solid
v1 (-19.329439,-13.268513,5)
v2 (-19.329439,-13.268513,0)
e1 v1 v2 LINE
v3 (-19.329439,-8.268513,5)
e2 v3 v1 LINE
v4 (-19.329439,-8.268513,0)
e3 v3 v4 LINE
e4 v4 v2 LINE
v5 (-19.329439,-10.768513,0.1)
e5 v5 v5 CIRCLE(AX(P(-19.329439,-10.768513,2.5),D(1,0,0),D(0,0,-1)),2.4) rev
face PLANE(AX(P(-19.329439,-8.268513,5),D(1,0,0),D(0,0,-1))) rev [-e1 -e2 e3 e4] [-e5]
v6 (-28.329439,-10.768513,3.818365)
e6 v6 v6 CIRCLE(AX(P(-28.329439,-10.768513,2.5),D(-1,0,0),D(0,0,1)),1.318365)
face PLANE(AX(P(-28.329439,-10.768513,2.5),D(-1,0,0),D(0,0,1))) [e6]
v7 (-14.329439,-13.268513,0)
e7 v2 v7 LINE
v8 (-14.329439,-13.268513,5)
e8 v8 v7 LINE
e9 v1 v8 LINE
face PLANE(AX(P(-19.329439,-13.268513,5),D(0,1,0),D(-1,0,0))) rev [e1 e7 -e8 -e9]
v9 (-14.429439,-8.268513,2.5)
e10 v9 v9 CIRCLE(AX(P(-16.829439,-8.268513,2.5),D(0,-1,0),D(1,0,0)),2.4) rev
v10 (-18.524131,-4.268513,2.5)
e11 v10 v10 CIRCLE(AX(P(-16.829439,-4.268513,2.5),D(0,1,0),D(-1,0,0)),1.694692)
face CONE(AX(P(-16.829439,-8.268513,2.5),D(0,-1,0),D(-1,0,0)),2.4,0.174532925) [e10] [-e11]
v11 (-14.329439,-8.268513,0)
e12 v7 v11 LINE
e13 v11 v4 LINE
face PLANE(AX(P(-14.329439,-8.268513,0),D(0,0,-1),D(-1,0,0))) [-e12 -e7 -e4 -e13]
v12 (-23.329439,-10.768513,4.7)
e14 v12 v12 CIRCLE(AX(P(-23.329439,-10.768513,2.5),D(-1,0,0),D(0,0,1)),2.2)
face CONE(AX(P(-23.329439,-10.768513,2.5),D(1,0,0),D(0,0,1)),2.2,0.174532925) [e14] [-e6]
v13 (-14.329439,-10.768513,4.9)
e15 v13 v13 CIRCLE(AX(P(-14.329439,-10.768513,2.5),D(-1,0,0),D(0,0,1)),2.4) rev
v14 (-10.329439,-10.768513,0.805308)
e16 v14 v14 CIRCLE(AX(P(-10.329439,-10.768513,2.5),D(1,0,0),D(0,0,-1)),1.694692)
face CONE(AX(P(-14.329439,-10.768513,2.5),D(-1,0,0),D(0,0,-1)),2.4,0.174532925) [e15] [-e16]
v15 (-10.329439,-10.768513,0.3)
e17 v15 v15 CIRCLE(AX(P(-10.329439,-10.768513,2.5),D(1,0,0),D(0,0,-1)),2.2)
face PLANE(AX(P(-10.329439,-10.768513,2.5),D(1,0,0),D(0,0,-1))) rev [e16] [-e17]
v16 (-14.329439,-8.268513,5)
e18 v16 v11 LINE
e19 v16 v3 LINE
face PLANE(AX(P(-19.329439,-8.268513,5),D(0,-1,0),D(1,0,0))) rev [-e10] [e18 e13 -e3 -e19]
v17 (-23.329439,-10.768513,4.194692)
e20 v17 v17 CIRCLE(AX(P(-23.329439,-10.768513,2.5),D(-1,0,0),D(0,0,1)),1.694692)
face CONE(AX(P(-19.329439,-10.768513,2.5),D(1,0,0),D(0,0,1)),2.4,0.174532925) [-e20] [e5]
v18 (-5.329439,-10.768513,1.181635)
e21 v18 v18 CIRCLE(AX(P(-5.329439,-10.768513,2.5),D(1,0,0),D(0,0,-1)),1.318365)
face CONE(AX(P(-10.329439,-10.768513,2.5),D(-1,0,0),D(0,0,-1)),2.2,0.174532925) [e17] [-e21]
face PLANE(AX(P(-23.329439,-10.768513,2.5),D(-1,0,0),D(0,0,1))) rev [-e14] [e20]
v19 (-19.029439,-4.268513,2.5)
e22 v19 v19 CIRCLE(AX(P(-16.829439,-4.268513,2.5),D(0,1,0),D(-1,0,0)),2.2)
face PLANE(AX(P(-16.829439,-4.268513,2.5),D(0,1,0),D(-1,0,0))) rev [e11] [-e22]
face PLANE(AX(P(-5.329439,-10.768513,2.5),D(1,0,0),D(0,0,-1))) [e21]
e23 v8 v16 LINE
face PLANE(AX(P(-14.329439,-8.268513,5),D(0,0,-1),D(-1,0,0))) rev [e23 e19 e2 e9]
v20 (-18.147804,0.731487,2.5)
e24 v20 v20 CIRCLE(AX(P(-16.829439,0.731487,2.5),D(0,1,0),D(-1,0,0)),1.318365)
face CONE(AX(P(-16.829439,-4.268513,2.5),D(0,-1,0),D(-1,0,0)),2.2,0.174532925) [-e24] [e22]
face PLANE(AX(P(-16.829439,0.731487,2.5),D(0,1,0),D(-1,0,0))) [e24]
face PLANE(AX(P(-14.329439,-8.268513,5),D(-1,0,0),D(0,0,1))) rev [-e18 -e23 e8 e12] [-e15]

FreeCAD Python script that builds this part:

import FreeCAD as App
import Part
import Sketcher
Q = App.Units.Quantity


def add_polygon(sketch, points):
    """Adds a closed chain of lines whose ends are joined by coincident constraints."""
    first, n = sketch.GeometryCount, len(points)
    for a, b in zip(points, points[1:] + points[:1]):
        sketch.addGeometry(Part.LineSegment(App.Vector(*a, 0), App.Vector(*b, 0)), False)
    for i in range(n):
        sketch.addConstraint(Sketcher.Constraint("Coincident", first + i, 2, first + (i + 1) % n, 1))

doc = App.newDocument("Part")
body = doc.addObject("PartDesign::Body", "Body")

# Sketch on XY plane
sketch1 = doc.addObject("Sketcher::SketchObject", "Sketch")
body.addObject(sketch1)
sketch1.AttachmentSupport = (doc.XY_Plane, [""])
sketch1.MapMode = "FlatFace"
add_polygon(sketch1, [(-19.3, -8.3), (-19.3, -13.3), (-14.3, -13.3), (-14.3, -8.3)])  # lines 0-3
sketch1.addConstraint([
    Sketcher.Constraint("Vertical", 0),
    Sketcher.Constraint("Horizontal", 1),
    Sketcher.Constraint("Vertical", 2),
    Sketcher.Constraint("Horizontal", 3),
    Sketcher.Constraint("Equal", 3, 0),
    Sketcher.Constraint("DistanceX", 1, 1, 1, 2, Q("5 mm")),
    Sketcher.Constraint("DistanceX", 0, 2, -1, 1, Q("19.329439 mm")),
    Sketcher.Constraint("DistanceY", 0, 2, -1, 1, Q("13.268513 mm")),
])
pad1 = doc.addObject("PartDesign::Pad", "Pad")
body.addObject(pad1)
pad1.Profile = sketch1
pad1.Length = 5

# Sketch on YZ plane
sketch2 = doc.addObject("Sketcher::SketchObject", "Sketch001")
body.addObject(sketch2)
sketch2.AttachmentSupport = (doc.YZ_Plane, [""])
sketch2.MapMode = "FlatFace"
sketch2.AttachmentOffset = App.Placement(App.Vector(0, 0, -14.329439), App.Rotation())
sketch2.addGeometry(Part.Circle(App.Vector(-10.8, 2.5, 0), App.Vector(0, 0, 1), 2.4), False)
sketch2.addConstraint([
    Sketcher.Constraint("Diameter", 0, Q("4.8 mm")),
    Sketcher.Constraint("DistanceY", -1, 1, 0, 3, Q("2.5 mm")),
    Sketcher.Constraint("DistanceX", 0, 3, -1, 1, Q("10.768513 mm")),
])
pad2 = doc.addObject("PartDesign::Pad", "Pad001")
body.addObject(pad2)
pad2.Profile = sketch2
pad2.Length = 4
pad2.TaperAngle = -10

# Sketch on XZ plane
sketch3 = doc.addObject("Sketcher::SketchObject", "Sketch002")
body.addObject(sketch3)
sketch3.AttachmentSupport = (doc.XZ_Plane, [""])
sketch3.MapMode = "FlatFace"
sketch3.AttachmentOffset = App.Placement(App.Vector(0, 0, 8.268513), App.Rotation())
sketch3.addGeometry(Part.Circle(App.Vector(-16.8, 2.5, 0), App.Vector(0, 0, 1), 2.4), False)
sketch3.addConstraint([
    Sketcher.Constraint("Diameter", 0, Q("4.8 mm")),
    Sketcher.Constraint("DistanceY", -1, 1, 0, 3, Q("2.5 mm")),
    Sketcher.Constraint("DistanceX", 0, 3, -1, 1, Q("16.829439 mm")),
])
pad3 = doc.addObject("PartDesign::Pad", "Pad002")
body.addObject(pad3)
pad3.Profile = sketch3
pad3.Length = 4
pad3.Reversed = True
pad3.TaperAngle = -10

# Sketch on YZ plane
sketch4 = doc.addObject("Sketcher::SketchObject", "Sketch003")
body.addObject(sketch4)
sketch4.AttachmentSupport = (doc.YZ_Plane, [""])
sketch4.MapMode = "FlatFace"
sketch4.AttachmentOffset = App.Placement(App.Vector(0, 0, -19.329439), App.Rotation())
sketch4.addGeometry(Part.Circle(App.Vector(-10.8, 2.5, 0), App.Vector(0, 0, 1), 2.4), False)
sketch4.addConstraint([
    Sketcher.Constraint("Diameter", 0, Q("4.8 mm")),
    Sketcher.Constraint("DistanceY", -1, 1, 0, 3, Q("2.5 mm")),
    Sketcher.Constraint("DistanceX", 0, 3, -1, 1, Q("10.768513 mm")),
])
pad4 = doc.addObject("PartDesign::Pad", "Pad003")
body.addObject(pad4)
pad4.Profile = sketch4
pad4.Length = 4
pad4.Reversed = True
pad4.TaperAngle = -10

# Sketch on YZ plane
sketch5 = doc.addObject("Sketcher::SketchObject", "Sketch004")
body.addObject(sketch5)
sketch5.AttachmentSupport = (doc.YZ_Plane, [""])
sketch5.MapMode = "FlatFace"
sketch5.AttachmentOffset = App.Placement(App.Vector(0, 0, -23.329439), App.Rotation())
sketch5.addGeometry(Part.Circle(App.Vector(-10.8, 2.5, 0), App.Vector(0, 0, 1), 2.2), False)
sketch5.addConstraint([
    Sketcher.Constraint("Diameter", 0, Q("4.4 mm")),
    Sketcher.Constraint("DistanceY", -1, 1, 0, 3, Q("2.5 mm")),
    Sketcher.Constraint("DistanceX", 0, 3, -1, 1, Q("10.768513 mm")),
])
pad5 = doc.addObject("PartDesign::Pad", "Pad004")
body.addObject(pad5)
pad5.Profile = sketch5
pad5.Length = 5
pad5.Reversed = True
pad5.TaperAngle = -10

# Sketch on XZ plane
sketch6 = doc.addObject("Sketcher::SketchObject", "Sketch005")
body.addObject(sketch6)
sketch6.AttachmentSupport = (doc.XZ_Plane, [""])
sketch6.MapMode = "FlatFace"
sketch6.AttachmentOffset = App.Placement(App.Vector(0, 0, 4.268513), App.Rotation())
sketch6.addGeometry(Part.Circle(App.Vector(-16.8, 2.5, 0), App.Vector(0, 0, 1), 2.2), False)
sketch6.addConstraint([
    Sketcher.Constraint("Diameter", 0, Q("4.4 mm")),
    Sketcher.Constraint("DistanceY", -1, 1, 0, 3, Q("2.5 mm")),
    Sketcher.Constraint("DistanceX", 0, 3, -1, 1, Q("16.829439 mm")),
])
pad6 = doc.addObject("PartDesign::Pad", "Pad005")
body.addObject(pad6)
pad6.Profile = sketch6
pad6.Length = 5
pad6.Reversed = True
pad6.TaperAngle = -10

# Sketch on YZ plane
sketch7 = doc.addObject("Sketcher::SketchObject", "Sketch006")
body.addObject(sketch7)
sketch7.AttachmentSupport = (doc.YZ_Plane, [""])
sketch7.MapMode = "FlatFace"
sketch7.AttachmentOffset = App.Placement(App.Vector(0, 0, -10.329439), App.Rotation())
sketch7.addGeometry(Part.Circle(App.Vector(-10.8, 2.5, 0), App.Vector(0, 0, 1), 2.2), False)
sketch7.addConstraint([
    Sketcher.Constraint("Diameter", 0, Q("4.4 mm")),
    Sketcher.Constraint("DistanceY", -1, 1, 0, 3, Q("2.5 mm")),
    Sketcher.Constraint("DistanceX", 0, 3, -1, 1, Q("10.768513 mm")),
])
pad7 = doc.addObject("PartDesign::Pad", "Pad006")
body.addObject(pad7)
pad7.Profile = sketch7
pad7.Length = 5
pad7.TaperAngle = -10

doc.recompute()
